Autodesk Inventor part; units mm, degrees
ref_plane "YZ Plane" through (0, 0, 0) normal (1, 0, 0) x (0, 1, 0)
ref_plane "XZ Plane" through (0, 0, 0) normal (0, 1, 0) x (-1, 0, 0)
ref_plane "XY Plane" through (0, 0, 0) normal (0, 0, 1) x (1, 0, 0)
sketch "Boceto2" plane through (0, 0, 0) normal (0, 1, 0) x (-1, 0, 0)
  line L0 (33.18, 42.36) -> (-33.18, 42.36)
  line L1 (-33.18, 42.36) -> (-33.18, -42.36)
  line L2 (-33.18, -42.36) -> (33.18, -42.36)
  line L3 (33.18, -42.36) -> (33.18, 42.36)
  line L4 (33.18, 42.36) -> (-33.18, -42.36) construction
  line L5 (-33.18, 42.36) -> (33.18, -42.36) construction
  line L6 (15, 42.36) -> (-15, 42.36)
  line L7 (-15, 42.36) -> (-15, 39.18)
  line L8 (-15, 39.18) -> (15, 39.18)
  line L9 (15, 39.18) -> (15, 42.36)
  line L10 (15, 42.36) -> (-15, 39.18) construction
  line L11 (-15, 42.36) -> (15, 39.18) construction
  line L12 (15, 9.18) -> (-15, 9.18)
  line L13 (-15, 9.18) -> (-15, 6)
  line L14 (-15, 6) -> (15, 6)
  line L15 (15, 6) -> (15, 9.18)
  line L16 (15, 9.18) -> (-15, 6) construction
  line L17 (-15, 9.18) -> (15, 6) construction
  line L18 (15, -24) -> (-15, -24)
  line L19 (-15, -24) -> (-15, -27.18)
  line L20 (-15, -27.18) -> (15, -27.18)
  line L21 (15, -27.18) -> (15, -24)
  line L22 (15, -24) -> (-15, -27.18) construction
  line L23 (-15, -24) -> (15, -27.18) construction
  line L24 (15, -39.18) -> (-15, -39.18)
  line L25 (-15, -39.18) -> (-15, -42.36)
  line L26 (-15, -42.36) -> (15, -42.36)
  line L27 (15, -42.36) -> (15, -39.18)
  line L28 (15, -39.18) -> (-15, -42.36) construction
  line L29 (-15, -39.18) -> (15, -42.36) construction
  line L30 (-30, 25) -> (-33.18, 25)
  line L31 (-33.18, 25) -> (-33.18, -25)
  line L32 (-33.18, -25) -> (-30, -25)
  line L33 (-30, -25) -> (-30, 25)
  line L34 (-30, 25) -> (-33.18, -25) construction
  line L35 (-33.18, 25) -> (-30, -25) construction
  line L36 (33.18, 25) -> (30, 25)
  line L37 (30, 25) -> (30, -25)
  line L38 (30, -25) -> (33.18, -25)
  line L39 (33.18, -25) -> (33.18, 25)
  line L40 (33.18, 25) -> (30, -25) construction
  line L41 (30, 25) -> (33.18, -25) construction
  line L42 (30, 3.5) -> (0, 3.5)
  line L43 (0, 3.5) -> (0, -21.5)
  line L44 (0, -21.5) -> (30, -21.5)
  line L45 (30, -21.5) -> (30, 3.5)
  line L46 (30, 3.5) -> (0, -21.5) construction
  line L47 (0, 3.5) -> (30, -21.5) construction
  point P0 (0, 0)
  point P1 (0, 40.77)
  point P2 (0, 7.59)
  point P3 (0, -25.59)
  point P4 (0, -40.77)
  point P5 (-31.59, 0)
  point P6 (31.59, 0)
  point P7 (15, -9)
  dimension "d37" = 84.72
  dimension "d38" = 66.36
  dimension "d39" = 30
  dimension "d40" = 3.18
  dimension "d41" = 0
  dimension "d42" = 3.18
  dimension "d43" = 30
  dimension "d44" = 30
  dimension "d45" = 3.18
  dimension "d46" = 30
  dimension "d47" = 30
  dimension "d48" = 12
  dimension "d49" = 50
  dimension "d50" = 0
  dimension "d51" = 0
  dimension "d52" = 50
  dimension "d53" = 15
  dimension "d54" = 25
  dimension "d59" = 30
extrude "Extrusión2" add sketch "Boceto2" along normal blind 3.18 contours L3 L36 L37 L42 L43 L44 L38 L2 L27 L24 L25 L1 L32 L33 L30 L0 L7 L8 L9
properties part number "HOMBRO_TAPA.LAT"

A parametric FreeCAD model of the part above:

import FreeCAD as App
import Part
import Sketcher

doc = App.newDocument("Part")
params = doc.addObject("Spreadsheet::Sheet", "Params")
for row, (alias, value) in enumerate([
    ("sketch1_width", "30 mm"),
    ("sketch1_height", "50 mm"),
    ("sketch1_height2", "25 mm"),
    ("sketch1_width2", "3.18 mm"),
    ("sketch1_height3", "3.5 mm"),
    ("pad1_length", "3.18 mm"),
], start=1):
    params.set(f"A{row}", alias)
    params.set(f"B{row}", "=" + value)
    params.setAlias(f"B{row}", alias)

body = doc.addObject("PartDesign::Body", "Body")

sketch1 = doc.addObject("Sketcher::SketchObject", "Sketch")
body.addObject(sketch1)
sketch1.AttachmentSupport = (doc.XZ_Plane, [""])
sketch1.MapMode = "FlatFace"
sketch1.addGeometry([
    Part.LineSegment(App.Vector(-33.2, 25, 0), App.Vector(-33.2, 42.4, 0)),
    Part.LineSegment(App.Vector(-33.2, 42.4, 0), App.Vector(-15, 42.4, 0)),
    Part.LineSegment(App.Vector(-15, 42.4, 0), App.Vector(-15, 39.2, 0)),
    Part.LineSegment(App.Vector(-15, 39.2, 0), App.Vector(15, 39.2, 0)),
    Part.LineSegment(App.Vector(15, 39.2, 0), App.Vector(15, 42.4, 0)),
    Part.LineSegment(App.Vector(15, 42.4, 0), App.Vector(33.2, 42.4, 0)),
    Part.LineSegment(App.Vector(33.2, 42.4, 0), App.Vector(33.2, 25, 0)),
    Part.LineSegment(App.Vector(33.2, 25, 0), App.Vector(30, 25, 0)),
    Part.LineSegment(App.Vector(30, 25, 0), App.Vector(30, -25, 0)),
    Part.LineSegment(App.Vector(30, -25, 0), App.Vector(33.2, -25, 0)),
    Part.LineSegment(App.Vector(33.2, -25, 0), App.Vector(33.2, -42.4, 0)),
    Part.LineSegment(App.Vector(33.2, -42.4, 0), App.Vector(15, -42.4, 0)),
    Part.LineSegment(App.Vector(15, -42.4, 0), App.Vector(15, -39.2, 0)),
    Part.LineSegment(App.Vector(15, -39.2, 0), App.Vector(-15, -39.2, 0)),
    Part.LineSegment(App.Vector(-15, -39.2, 0), App.Vector(-15, -42.4, 0)),
    Part.LineSegment(App.Vector(-15, -42.4, 0), App.Vector(-33.2, -42.4, 0)),
    Part.LineSegment(App.Vector(-33.2, -42.4, 0), App.Vector(-33.2, -25, 0)),
    Part.LineSegment(App.Vector(-33.2, -25, 0), App.Vector(-30, -25, 0)),
    Part.LineSegment(App.Vector(-30, -25, 0), App.Vector(-30, -21.5, 0)),
    Part.LineSegment(App.Vector(-30, -21.5, 0), App.Vector(0, -21.5, 0)),
    Part.LineSegment(App.Vector(0, -21.5, 0), App.Vector(0, 3.5, 0)),
    Part.LineSegment(App.Vector(0, 3.5, 0), App.Vector(-30, 3.5, 0)),
    Part.LineSegment(App.Vector(-30, 3.5, 0), App.Vector(-30, 25, 0)),
    Part.LineSegment(App.Vector(-30, 25, 0), App.Vector(-33.2, 25, 0)),
    Part.LineSegment(App.Vector(15, -24, 0), App.Vector(-15, -24, 0)),
    Part.LineSegment(App.Vector(-15, -24, 0), App.Vector(-15, -27.2, 0)),
    Part.LineSegment(App.Vector(-15, -27.2, 0), App.Vector(15, -27.2, 0)),
    Part.LineSegment(App.Vector(15, -27.2, 0), App.Vector(15, -24, 0)),
    Part.LineSegment(App.Vector(15, 9.2, 0), App.Vector(-15, 9.2, 0)),
    Part.LineSegment(App.Vector(-15, 9.2, 0), App.Vector(-15, 6, 0)),
    Part.LineSegment(App.Vector(-15, 6, 0), App.Vector(15, 6, 0)),
    Part.LineSegment(App.Vector(15, 6, 0), App.Vector(15, 9.2, 0)),
], False)
sketch1.addConstraint([
    Sketcher.Constraint("Coincident", 0, 2, 1, 1),
    Sketcher.Constraint("Coincident", 1, 2, 2, 1),
    Sketcher.Constraint("Coincident", 2, 2, 3, 1),
    Sketcher.Constraint("Coincident", 3, 2, 4, 1),
    Sketcher.Constraint("Coincident", 4, 2, 5, 1),
    Sketcher.Constraint("Coincident", 5, 2, 6, 1),
    Sketcher.Constraint("Coincident", 6, 2, 7, 1),
    Sketcher.Constraint("Coincident", 7, 2, 8, 1),
    Sketcher.Constraint("Coincident", 8, 2, 9, 1),
    Sketcher.Constraint("Coincident", 9, 2, 10, 1),
    Sketcher.Constraint("Coincident", 10, 2, 11, 1),
    Sketcher.Constraint("Coincident", 11, 2, 12, 1),
    Sketcher.Constraint("Coincident", 12, 2, 13, 1),
    Sketcher.Constraint("Coincident", 13, 2, 14, 1),
    Sketcher.Constraint("Coincident", 14, 2, 15, 1),
    Sketcher.Constraint("Coincident", 15, 2, 16, 1),
    Sketcher.Constraint("Coincident", 16, 2, 17, 1),
    Sketcher.Constraint("Coincident", 17, 2, 18, 1),
    Sketcher.Constraint("Coincident", 18, 2, 19, 1),
    Sketcher.Constraint("Coincident", 19, 2, 20, 1),
    Sketcher.Constraint("Coincident", 20, 2, 21, 1),
    Sketcher.Constraint("Coincident", 21, 2, 22, 1),
    Sketcher.Constraint("Coincident", 22, 2, 23, 1),
    Sketcher.Constraint("Coincident", 23, 2, 0, 1),
    Sketcher.Constraint("Coincident", 24, 2, 25, 1),
    Sketcher.Constraint("Coincident", 25, 2, 26, 1),
    Sketcher.Constraint("Coincident", 26, 2, 27, 1),
    Sketcher.Constraint("Coincident", 27, 2, 24, 1),
    Sketcher.Constraint("Coincident", 28, 2, 29, 1),
    Sketcher.Constraint("Coincident", 29, 2, 30, 1),
    Sketcher.Constraint("Coincident", 30, 2, 31, 1),
    Sketcher.Constraint("Coincident", 31, 2, 28, 1),
    Sketcher.Constraint("Vertical", 0),
    Sketcher.Constraint("Horizontal", 1),
    Sketcher.Constraint("Vertical", 2),
    Sketcher.Constraint("Horizontal", 3),
    Sketcher.Constraint("Vertical", 4),
    Sketcher.Constraint("Horizontal", 5),
    Sketcher.Constraint("Vertical", 6),
    Sketcher.Constraint("Horizontal", 7),
    Sketcher.Constraint("Vertical", 8),
    Sketcher.Constraint("Horizontal", 9),
    Sketcher.Constraint("Vertical", 10),
    Sketcher.Constraint("Horizontal", 11),
    Sketcher.Constraint("Vertical", 12),
    Sketcher.Constraint("Horizontal", 13),
    Sketcher.Constraint("Vertical", 14),
    Sketcher.Constraint("Horizontal", 15),
    Sketcher.Constraint("Vertical", 16),
    Sketcher.Constraint("Horizontal", 17),
    Sketcher.Constraint("Vertical", 18),
    Sketcher.Constraint("Horizontal", 19),
    Sketcher.Constraint("Vertical", 20),
    Sketcher.Constraint("Horizontal", 21),
    Sketcher.Constraint("Vertical", 22),
    Sketcher.Constraint("Horizontal", 23),
    Sketcher.Constraint("Horizontal", 24),
    Sketcher.Constraint("Vertical", 25),
    Sketcher.Constraint("Horizontal", 26),
    Sketcher.Constraint("Vertical", 27),
    Sketcher.Constraint("Horizontal", 28),
    Sketcher.Constraint("Vertical", 29),
    Sketcher.Constraint("Horizontal", 30),
    Sketcher.Constraint("Vertical", 31),
    Sketcher.Constraint("Symmetric", 0, 2, 10, 2, -1, 1),
    Sketcher.Constraint("Symmetric", 2, 2, 12, 2, -1, 1),
    Sketcher.Constraint("Symmetric", 4, 2, 14, 2, -1, 1),
    Sketcher.Constraint("Symmetric", 6, 2, 16, 2, -1, 1),
    Sketcher.Constraint("Symmetric", 8, 2, 22, 2, -1, 1),
    Sketcher.Constraint("Symmetric", 1, 2, 4, 2, -2),
    Sketcher.Constraint("Symmetric", 9, 2, 16, 2, -2),
    Sketcher.Constraint("PointOnObject", 19, 2, -2),
    Sketcher.Constraint("Vertical", 18, 2, 21, 2),
    Sketcher.Constraint("Vertical", 14, 2, 24, 2),
    Sketcher.Constraint("Vertical", 12, 2, 26, 2),
    Sketcher.Constraint("Vertical", 25, 2, 28, 2),
    Sketcher.Constraint("Vertical", 27, 2, 30, 2),
    Sketcher.Constraint("Equal", 13, 19),
    Sketcher.Constraint("Equal", 23, 2),
    Sketcher.Constraint("Equal", 14, 25),
    Sketcher.Constraint("Equal", 27, 29),
    Sketcher.Constraint("DistanceX", 3, 1, 3, 2, 30.0),
    Sketcher.Constraint("DistanceY", 8, 2, 8, 1, 50.0),
    Sketcher.Constraint("DistanceY", 20, 1, 20, 2, 25.0),
    Sketcher.Constraint("DistanceY", 13, 2, 25, 2, 12.0),
    Sketcher.Constraint("DistanceY", 28, 2, 2, 2, 30.0),
    Sketcher.Constraint("DistanceY", 27, 2, 30, 2, 30.0),
    Sketcher.Constraint("DistanceX", 7, 2, 7, 1, 3.18),
    Sketcher.Constraint("DistanceY", 18, 1, 18, 2, 3.5),
])
sketch1.setExpression("Constraints[81]", "Params.sketch1_width")
sketch1.setExpression("Constraints[82]", "Params.sketch1_height")
sketch1.setExpression("Constraints[83]", "Params.sketch1_height2")
sketch1.setExpression("Constraints[87]", "Params.sketch1_width2")
sketch1.setExpression("Constraints[88]", "Params.sketch1_height3")
pad1 = doc.addObject("PartDesign::Pad", "Pad")
body.addObject(pad1)
pad1.Profile = sketch1
pad1.setExpression("Length", "Params.pad1_length")
pad1.Reversed = True

doc.recompute()
